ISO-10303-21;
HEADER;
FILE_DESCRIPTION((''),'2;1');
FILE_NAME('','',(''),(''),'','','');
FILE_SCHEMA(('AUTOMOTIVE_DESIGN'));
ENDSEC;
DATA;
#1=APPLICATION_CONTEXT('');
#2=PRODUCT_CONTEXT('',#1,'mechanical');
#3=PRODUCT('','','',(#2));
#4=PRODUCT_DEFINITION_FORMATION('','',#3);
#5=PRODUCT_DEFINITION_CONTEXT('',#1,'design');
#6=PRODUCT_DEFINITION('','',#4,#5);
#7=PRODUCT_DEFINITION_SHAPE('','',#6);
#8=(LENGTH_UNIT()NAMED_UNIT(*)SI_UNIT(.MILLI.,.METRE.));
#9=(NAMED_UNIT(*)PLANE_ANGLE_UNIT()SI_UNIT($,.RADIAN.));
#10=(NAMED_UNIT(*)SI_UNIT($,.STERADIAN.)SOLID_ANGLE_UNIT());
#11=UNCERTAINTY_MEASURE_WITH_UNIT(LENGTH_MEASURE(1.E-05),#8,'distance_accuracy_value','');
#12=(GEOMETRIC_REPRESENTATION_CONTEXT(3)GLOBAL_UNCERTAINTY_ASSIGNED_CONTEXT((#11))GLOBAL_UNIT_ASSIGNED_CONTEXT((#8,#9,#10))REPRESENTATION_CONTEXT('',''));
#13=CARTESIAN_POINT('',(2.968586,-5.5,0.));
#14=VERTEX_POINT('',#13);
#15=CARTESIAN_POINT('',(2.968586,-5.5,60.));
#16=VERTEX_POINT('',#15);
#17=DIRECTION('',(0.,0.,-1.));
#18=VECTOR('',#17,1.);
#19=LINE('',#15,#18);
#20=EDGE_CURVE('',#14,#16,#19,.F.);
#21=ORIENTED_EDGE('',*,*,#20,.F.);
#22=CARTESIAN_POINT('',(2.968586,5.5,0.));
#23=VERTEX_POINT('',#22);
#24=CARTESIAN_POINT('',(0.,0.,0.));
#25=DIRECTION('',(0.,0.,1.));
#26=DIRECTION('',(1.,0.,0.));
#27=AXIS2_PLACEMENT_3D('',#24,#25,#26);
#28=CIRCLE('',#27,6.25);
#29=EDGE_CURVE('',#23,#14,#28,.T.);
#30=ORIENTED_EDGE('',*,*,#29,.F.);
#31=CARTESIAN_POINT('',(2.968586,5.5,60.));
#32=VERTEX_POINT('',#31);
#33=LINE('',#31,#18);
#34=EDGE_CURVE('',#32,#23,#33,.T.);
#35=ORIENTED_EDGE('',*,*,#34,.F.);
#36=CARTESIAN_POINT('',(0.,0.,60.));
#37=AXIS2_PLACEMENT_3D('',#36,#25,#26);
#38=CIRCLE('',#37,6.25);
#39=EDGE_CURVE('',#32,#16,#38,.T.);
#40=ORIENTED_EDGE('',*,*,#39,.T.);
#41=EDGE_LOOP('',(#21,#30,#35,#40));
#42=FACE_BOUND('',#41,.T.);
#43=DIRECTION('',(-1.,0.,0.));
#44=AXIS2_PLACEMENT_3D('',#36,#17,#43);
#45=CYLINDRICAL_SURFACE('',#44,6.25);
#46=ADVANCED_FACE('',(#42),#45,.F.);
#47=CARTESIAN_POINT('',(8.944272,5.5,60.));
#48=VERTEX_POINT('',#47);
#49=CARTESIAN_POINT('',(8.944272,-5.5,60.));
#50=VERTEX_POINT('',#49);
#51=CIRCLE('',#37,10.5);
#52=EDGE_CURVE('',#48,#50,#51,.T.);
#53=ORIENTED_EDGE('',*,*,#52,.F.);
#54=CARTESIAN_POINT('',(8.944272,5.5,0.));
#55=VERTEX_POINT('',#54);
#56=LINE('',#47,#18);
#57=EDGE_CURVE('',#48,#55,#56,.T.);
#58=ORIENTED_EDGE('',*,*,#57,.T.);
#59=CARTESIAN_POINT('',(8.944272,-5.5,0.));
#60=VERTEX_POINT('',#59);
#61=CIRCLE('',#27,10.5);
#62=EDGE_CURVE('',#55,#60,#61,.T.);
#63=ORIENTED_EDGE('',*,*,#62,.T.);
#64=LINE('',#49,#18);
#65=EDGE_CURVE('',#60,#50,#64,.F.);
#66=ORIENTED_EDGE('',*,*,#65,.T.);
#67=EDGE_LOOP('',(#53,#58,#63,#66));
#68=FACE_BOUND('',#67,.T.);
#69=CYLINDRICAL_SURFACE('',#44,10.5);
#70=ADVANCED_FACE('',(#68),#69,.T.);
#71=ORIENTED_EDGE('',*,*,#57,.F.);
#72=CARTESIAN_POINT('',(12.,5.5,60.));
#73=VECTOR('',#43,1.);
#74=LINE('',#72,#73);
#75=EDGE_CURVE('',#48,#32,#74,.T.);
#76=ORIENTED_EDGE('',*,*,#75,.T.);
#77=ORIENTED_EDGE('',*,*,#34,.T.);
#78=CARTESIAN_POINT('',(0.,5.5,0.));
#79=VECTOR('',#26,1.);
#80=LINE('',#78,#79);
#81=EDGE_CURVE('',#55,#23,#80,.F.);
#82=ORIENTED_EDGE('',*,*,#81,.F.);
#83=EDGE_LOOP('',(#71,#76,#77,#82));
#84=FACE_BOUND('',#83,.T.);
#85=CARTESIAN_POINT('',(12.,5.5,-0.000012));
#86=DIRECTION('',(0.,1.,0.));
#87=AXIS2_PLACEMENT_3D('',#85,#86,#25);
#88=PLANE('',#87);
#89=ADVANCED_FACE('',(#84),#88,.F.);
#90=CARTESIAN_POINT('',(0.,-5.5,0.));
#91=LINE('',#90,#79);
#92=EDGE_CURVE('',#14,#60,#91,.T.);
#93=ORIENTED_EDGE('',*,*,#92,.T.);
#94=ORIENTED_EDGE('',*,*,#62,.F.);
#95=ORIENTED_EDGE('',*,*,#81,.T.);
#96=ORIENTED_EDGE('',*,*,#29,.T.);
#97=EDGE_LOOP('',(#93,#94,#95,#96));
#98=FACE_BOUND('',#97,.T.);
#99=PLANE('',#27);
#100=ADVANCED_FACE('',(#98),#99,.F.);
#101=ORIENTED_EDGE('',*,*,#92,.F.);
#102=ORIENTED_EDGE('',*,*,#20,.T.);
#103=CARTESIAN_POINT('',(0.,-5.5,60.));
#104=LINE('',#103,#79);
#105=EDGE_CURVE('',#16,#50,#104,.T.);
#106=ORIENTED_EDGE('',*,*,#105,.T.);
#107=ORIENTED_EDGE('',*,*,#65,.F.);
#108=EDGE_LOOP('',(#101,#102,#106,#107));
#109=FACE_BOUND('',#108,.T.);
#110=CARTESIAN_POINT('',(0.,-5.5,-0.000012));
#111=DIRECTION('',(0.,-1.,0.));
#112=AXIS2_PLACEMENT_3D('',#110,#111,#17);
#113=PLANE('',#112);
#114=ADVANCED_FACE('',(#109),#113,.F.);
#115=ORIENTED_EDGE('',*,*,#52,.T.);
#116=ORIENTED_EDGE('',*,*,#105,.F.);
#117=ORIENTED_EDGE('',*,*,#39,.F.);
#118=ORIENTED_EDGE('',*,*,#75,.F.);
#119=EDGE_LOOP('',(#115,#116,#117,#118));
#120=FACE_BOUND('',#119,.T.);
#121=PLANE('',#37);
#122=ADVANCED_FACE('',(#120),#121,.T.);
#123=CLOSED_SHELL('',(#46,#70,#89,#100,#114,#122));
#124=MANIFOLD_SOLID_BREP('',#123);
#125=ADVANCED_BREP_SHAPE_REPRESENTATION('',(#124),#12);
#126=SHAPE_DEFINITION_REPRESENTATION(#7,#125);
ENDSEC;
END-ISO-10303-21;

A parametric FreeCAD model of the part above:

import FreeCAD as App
import Part
import Sketcher
Q = App.Units.Quantity


def add_polygon(sketch, points):
    """Adds a closed chain of lines whose ends are joined by coincident constraints."""
    first, n = sketch.GeometryCount, len(points)
    for a, b in zip(points, points[1:] + points[:1]):
        sketch.addGeometry(Part.LineSegment(App.Vector(*a, 0), App.Vector(*b, 0)), False)
    for i in range(n):
        sketch.addConstraint(Sketcher.Constraint("Coincident", first + i, 2, first + (i + 1) % n, 1))

doc = App.newDocument("Part")
body = doc.addObject("PartDesign::Body", "Body")

# Sketch on XY plane
sketch1 = body.newObject("Sketcher::SketchObject", "Sketch")
sketch1.AttachmentSupport = (doc.getObject("XY_Plane"), [""])
sketch1.MapMode = "FlatFace"
sketch1.addGeometry(Part.Circle(App.Vector(0, 0, 0), App.Vector(0, 0, 1), 10), False)
sketch1.addGeometry(Part.Circle(App.Vector(0, 0, 0), App.Vector(0, 0, 1), 6), False)
sketch1.addConstraint(Sketcher.Constraint("Coincident", 0, 3, -1, 1))
sketch1.addConstraint(Sketcher.Constraint("Coincident", 1, 3, -1, 1))
sketch1.addConstraint(Sketcher.Constraint("Diameter", 0, Q("21 mm")))
sketch1.addConstraint(Sketcher.Constraint("Diameter", 1, Q("12.5 mm")))
pad1 = body.newObject("PartDesign::Pad", "Pad")
pad1.Profile = sketch1
pad1.Length = 60

# Sketch on XY plane
sketch2 = body.newObject("Sketcher::SketchObject", "Sketch001")
sketch2.AttachmentSupport = (doc.getObject("XY_Plane"), [""])
sketch2.MapMode = "FlatFace"
add_polygon(sketch2, [(0, 6), (0, -6), (12, -6), (12, 6)])  # lines 0-3
sketch2.addConstraint(Sketcher.Constraint("Vertical", 0))
sketch2.addConstraint(Sketcher.Constraint("Horizontal", 1))
sketch2.addConstraint(Sketcher.Constraint("Vertical", 2))
sketch2.addConstraint(Sketcher.Constraint("Horizontal", 3))
sketch2.addConstraint(Sketcher.Constraint("Symmetric", 0, 2, 3, 2, -1, 1))
sketch2.addConstraint(Sketcher.Constraint("DistanceX", 1, 1, 1, 2, Q("12 mm")))
sketch2.addConstraint(Sketcher.Constraint("DistanceY", 0, 2, 0, 1, Q("11 mm")))
pocket1 = body.newObject("PartDesign::Pocket", "Pocket")
pocket1.Profile = sketch2
pocket1.Type = "ThroughAll"
pocket1.Midplane = True

doc.recompute()
